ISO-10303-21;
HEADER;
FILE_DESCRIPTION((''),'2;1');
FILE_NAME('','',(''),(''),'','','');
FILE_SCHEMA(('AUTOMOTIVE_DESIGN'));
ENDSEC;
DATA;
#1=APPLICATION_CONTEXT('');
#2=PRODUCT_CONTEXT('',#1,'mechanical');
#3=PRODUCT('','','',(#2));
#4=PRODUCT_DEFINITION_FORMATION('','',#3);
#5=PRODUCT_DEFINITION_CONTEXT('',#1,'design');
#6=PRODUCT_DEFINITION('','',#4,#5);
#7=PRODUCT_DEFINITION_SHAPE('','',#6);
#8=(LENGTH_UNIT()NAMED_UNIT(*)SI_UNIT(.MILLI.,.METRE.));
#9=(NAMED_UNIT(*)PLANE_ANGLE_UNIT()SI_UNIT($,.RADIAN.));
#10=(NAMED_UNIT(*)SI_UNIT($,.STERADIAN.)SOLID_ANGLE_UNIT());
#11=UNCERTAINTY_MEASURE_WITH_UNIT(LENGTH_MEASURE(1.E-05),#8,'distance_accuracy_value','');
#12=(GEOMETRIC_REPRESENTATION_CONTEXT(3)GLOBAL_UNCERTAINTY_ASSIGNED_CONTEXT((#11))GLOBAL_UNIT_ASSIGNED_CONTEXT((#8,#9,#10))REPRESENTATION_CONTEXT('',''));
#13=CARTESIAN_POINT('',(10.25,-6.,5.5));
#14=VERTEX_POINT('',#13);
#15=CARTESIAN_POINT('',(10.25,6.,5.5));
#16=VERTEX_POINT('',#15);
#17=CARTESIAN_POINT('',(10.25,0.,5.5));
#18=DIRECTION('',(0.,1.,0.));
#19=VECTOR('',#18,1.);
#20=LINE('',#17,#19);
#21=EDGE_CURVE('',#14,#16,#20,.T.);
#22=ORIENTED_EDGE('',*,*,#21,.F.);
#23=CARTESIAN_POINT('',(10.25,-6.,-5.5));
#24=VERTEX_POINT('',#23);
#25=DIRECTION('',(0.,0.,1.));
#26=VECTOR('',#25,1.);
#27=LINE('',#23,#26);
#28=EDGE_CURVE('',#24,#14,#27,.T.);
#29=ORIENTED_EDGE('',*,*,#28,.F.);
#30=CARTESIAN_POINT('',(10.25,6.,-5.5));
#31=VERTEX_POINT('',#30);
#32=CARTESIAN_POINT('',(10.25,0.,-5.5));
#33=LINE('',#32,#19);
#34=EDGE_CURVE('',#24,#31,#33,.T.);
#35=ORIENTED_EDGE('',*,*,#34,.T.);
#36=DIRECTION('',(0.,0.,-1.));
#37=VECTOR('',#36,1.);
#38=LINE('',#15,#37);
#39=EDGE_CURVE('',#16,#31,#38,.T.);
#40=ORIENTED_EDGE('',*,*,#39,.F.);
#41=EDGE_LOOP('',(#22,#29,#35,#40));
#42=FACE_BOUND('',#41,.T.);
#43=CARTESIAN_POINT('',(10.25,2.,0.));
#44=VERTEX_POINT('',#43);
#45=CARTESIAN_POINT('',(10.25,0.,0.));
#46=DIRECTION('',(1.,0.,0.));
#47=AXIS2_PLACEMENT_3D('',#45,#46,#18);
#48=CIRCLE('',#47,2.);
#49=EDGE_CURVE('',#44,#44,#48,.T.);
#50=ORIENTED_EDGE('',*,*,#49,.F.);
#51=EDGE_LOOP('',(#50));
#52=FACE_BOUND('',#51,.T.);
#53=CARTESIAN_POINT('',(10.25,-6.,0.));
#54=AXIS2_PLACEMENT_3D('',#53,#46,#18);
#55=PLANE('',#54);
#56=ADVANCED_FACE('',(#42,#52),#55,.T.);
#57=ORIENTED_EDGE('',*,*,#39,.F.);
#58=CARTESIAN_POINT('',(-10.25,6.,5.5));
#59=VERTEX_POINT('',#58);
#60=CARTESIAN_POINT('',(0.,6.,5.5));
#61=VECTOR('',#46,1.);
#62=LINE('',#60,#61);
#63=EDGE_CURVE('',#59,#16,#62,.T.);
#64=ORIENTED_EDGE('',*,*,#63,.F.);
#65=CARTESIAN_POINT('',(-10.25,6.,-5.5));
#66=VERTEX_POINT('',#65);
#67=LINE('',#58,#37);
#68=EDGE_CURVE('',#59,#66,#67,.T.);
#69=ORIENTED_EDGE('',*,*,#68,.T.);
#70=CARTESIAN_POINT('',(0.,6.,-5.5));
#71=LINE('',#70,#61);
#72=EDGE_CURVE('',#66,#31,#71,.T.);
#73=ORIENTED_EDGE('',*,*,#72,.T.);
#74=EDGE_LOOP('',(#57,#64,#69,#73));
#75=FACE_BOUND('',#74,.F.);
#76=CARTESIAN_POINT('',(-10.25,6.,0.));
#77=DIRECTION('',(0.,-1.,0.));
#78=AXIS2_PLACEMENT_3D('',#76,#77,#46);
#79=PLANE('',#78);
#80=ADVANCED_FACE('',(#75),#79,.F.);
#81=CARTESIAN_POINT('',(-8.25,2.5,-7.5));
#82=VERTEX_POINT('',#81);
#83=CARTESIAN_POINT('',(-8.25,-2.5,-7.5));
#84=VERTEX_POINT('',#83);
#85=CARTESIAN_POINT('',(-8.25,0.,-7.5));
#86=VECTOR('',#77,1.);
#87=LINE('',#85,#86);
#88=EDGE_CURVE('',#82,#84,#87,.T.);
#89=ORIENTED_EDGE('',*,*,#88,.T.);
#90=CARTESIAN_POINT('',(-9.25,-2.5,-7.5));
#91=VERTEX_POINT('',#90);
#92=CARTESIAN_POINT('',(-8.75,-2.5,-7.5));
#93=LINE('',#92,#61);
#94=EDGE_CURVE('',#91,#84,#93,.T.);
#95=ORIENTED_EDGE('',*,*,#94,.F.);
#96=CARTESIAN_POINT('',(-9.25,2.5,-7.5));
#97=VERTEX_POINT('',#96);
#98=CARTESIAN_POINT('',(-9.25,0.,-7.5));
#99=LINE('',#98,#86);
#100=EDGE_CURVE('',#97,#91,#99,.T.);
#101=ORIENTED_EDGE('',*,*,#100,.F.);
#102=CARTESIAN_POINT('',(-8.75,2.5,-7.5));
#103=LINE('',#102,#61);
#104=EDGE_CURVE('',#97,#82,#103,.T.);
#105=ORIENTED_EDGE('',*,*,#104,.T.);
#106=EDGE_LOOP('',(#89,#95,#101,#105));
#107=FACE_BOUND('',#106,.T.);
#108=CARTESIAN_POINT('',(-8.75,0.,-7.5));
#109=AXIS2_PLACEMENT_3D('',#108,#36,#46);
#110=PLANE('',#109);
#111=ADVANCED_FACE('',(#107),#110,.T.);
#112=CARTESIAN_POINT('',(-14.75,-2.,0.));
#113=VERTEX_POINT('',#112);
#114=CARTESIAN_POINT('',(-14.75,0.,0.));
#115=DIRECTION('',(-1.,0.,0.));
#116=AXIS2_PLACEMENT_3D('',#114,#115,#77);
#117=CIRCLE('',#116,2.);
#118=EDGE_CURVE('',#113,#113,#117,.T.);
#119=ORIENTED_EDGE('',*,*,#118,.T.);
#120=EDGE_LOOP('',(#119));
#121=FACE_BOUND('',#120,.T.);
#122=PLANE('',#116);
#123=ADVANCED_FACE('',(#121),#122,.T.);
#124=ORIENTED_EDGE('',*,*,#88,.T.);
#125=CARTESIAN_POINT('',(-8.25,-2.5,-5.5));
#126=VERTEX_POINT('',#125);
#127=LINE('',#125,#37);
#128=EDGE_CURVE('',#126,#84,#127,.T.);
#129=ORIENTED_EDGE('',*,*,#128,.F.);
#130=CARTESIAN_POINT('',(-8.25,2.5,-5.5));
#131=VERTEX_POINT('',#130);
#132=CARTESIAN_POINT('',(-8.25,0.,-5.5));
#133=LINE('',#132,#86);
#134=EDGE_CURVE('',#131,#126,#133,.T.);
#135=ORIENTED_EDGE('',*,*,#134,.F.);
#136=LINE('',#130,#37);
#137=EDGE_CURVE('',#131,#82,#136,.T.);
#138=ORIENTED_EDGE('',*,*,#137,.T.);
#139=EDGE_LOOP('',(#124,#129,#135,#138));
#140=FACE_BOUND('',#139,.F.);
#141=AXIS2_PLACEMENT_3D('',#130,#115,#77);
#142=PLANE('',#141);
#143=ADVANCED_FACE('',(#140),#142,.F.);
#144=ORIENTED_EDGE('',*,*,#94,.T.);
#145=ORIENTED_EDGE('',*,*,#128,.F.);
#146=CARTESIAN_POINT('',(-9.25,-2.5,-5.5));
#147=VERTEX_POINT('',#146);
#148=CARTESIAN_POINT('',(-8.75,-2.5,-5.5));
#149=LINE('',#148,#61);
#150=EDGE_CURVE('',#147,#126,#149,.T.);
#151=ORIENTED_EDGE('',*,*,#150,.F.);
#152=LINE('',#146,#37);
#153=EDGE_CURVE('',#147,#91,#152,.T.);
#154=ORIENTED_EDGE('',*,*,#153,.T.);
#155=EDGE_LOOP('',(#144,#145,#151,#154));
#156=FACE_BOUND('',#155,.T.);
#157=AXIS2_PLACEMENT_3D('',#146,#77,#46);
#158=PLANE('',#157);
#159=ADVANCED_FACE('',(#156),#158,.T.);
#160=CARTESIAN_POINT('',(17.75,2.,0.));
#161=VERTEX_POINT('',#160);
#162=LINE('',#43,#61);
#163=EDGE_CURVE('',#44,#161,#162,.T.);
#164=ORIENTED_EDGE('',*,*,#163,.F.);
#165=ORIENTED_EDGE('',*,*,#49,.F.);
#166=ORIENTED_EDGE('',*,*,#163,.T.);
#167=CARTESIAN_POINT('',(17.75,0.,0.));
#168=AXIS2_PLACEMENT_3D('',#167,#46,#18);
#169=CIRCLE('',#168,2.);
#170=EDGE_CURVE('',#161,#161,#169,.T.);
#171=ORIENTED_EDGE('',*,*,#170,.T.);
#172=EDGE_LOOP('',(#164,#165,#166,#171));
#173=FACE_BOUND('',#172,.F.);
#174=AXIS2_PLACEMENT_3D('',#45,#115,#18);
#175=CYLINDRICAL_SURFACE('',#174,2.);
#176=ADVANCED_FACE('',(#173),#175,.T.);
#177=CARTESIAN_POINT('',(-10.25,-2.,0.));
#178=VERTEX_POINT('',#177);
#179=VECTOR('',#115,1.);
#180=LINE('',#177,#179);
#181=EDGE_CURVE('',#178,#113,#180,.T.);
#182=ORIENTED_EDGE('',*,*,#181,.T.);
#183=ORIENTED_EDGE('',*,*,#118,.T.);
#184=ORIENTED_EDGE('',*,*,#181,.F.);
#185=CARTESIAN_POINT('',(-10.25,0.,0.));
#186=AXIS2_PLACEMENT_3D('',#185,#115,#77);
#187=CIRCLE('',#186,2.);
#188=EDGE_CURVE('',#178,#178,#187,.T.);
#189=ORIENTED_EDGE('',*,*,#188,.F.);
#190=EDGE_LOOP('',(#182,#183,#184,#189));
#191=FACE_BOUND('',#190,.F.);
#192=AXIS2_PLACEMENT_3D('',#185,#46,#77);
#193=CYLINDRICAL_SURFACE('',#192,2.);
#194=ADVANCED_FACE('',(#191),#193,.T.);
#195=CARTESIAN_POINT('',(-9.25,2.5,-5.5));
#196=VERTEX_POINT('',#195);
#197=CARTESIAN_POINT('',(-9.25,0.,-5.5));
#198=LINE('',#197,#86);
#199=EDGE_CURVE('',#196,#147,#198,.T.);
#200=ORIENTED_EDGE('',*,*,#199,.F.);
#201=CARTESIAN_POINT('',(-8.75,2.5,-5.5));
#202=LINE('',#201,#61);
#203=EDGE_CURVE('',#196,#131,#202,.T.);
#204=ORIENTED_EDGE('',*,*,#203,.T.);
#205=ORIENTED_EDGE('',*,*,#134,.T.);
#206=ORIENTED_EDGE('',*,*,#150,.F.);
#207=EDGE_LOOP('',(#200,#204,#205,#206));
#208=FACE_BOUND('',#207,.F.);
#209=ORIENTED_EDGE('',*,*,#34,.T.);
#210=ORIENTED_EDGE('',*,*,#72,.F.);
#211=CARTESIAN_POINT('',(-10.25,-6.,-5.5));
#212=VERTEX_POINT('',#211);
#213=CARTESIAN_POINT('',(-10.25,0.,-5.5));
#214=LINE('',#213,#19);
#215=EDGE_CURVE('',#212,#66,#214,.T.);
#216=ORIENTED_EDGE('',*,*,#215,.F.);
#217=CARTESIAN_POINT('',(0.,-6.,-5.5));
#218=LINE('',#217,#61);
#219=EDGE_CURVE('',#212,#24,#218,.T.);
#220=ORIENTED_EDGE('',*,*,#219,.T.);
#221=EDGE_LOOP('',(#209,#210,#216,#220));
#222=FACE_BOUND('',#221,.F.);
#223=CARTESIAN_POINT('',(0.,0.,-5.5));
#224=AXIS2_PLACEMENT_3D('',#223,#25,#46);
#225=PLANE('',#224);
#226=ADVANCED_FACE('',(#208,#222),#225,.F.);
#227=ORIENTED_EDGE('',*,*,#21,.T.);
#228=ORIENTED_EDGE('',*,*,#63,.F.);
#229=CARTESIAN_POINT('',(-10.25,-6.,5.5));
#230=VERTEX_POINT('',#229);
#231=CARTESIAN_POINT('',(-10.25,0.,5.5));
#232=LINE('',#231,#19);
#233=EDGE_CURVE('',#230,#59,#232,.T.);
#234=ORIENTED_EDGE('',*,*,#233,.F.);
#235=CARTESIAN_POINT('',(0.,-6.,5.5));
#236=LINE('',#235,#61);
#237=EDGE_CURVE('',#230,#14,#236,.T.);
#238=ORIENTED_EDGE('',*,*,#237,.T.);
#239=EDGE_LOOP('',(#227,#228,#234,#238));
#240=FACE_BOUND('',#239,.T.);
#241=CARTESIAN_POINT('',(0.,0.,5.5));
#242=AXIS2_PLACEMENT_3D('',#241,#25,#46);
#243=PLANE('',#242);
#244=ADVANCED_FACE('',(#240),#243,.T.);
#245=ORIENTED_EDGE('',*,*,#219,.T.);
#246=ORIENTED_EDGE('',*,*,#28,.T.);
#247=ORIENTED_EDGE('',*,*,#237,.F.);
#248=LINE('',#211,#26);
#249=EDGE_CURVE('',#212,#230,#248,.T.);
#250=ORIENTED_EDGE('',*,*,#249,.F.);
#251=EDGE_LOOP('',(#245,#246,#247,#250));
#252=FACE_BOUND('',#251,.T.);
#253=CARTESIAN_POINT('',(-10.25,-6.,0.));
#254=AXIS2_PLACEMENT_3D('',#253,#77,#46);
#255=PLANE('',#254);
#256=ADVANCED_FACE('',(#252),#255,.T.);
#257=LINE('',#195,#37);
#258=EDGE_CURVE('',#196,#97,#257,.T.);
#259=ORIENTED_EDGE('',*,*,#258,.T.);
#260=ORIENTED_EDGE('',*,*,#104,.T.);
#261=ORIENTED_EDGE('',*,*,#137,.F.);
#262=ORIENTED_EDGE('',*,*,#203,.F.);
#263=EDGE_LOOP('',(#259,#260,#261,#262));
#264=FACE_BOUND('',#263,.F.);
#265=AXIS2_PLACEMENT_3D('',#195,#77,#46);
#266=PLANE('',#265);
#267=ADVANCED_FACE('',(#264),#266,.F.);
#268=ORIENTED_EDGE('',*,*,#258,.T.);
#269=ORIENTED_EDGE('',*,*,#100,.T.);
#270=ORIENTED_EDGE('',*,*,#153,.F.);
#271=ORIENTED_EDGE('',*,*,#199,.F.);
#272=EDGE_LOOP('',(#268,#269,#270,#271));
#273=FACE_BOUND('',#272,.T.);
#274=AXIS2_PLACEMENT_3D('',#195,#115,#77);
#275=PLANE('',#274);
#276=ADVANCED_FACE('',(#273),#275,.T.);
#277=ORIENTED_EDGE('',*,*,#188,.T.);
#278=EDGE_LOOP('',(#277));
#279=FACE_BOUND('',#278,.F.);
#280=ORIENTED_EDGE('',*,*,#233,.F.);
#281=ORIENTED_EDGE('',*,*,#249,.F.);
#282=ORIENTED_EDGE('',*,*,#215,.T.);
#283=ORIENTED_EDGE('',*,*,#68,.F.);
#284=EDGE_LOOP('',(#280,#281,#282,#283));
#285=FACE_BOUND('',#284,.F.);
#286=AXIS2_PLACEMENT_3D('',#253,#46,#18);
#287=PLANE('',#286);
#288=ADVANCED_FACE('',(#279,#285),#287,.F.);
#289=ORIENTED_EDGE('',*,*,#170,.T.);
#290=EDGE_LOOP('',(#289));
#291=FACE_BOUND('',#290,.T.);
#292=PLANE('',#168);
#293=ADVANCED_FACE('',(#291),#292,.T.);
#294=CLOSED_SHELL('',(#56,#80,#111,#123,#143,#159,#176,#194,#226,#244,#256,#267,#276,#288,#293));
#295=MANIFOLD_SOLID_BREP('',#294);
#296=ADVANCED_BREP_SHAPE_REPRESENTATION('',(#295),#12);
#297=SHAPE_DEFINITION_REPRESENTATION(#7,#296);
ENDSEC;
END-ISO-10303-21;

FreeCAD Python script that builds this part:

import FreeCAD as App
import Part
import Sketcher
from FreeCAD import Vector
Q = App.Units.Quantity

doc = App.newDocument("Part")
body = doc.addObject("PartDesign::Body", "Body")

sketch1 = body.newObject("Sketcher::SketchObject", "Sketch")
sketch1.AttachmentSupport = (doc.getObject("XY_Plane"), [""])
sketch1.MapMode = "FlatFace"
sketch1.addGeometry([
    Part.LineSegment(Vector(-10, 6, 0), Vector(-10, -6, 0)),
    Part.LineSegment(Vector(-10, -6, 0), Vector(10, -6, 0)),
    Part.LineSegment(Vector(10, -6, 0), Vector(10, 6, 0)),
    Part.LineSegment(Vector(10, 6, 0), Vector(-10, 6, 0)),
], False)
sketch1.addConstraint([
    Sketcher.Constraint("Coincident", 0, 2, 1, 1),
    Sketcher.Constraint("Coincident", 1, 2, 2, 1),
    Sketcher.Constraint("Coincident", 2, 2, 3, 1),
    Sketcher.Constraint("Coincident", 3, 2, 0, 1),
    Sketcher.Constraint("Vertical", 0),
    Sketcher.Constraint("Horizontal", 1),
    Sketcher.Constraint("Vertical", 2),
    Sketcher.Constraint("Horizontal", 3),
    Sketcher.Constraint("Symmetric", 0, 2, 2, 2, -1, 1),
    Sketcher.Constraint("DistanceY", 0, 2, 0, 1, Q("12 mm")),
    Sketcher.Constraint("DistanceX", 1, 1, 1, 2, Q("20.5 mm")),
])
pad1 = body.newObject("PartDesign::Pad", "Pad")
pad1.Profile = sketch1
pad1.Type = "TwoLengths"
pad1.Length = 5.5
pad1.Length2 = 5.5

sketch2 = body.newObject("Sketcher::SketchObject", "Sketch001")
sketch2.AttachmentSupport = (doc.getObject("YZ_Plane"), [""])
sketch2.MapMode = "FlatFace"
sketch2.AttachmentOffset = App.Placement(Vector(0, 0, -10.25), App.Rotation())
sketch2.addGeometry(Part.Circle(Vector(0, 0, 0), Vector(0, 0, 1), 2), False)
sketch2.addConstraint([
    Sketcher.Constraint("Coincident", 0, 3, -1, 1),
    Sketcher.Constraint("Diameter", 0, Q("4 mm")),
])
pad2 = body.newObject("PartDesign::Pad", "Pad001")
pad2.Profile = sketch2
pad2.Length = 4.5
pad2.Reversed = True

sketch3 = body.newObject("Sketcher::SketchObject", "Sketch002")
sketch3.AttachmentSupport = (doc.getObject("YZ_Plane"), [""])
sketch3.MapMode = "FlatFace"
sketch3.AttachmentOffset = App.Placement(Vector(0, 0, 10.25), App.Rotation())
sketch3.addGeometry(Part.Circle(Vector(0, 0, 0), Vector(0, 0, 1), 2), False)
sketch3.addConstraint([
    Sketcher.Constraint("Coincident", 0, 3, -1, 1),
    Sketcher.Constraint("Diameter", 0, Q("4 mm")),
])
pad3 = body.newObject("PartDesign::Pad", "Pad002")
pad3.Profile = sketch3
pad3.Length = 7.5

sketch4 = body.newObject("Sketcher::SketchObject", "Sketch003")
sketch4.AttachmentSupport = (doc.getObject("XY_Plane"), [""])
sketch4.MapMode = "FlatFace"
sketch4.AttachmentOffset = App.Placement(Vector(0, 0, -5.5), App.Rotation())
sketch4.addGeometry([
    Part.LineSegment(Vector(-9.2, -2.5, 0), Vector(-9.2, 2.5, 0)),
    Part.LineSegment(Vector(-9.2, 2.5, 0), Vector(-8.2, 2.5, 0)),
    Part.LineSegment(Vector(-8.2, 2.5, 0), Vector(-8.2, -2.5, 0)),
    Part.LineSegment(Vector(-8.2, -2.5, 0), Vector(-9.2, -2.5, 0)),
], False)
sketch4.addConstraint([
    Sketcher.Constraint("Coincident", 0, 2, 1, 1),
    Sketcher.Constraint("Coincident", 1, 2, 2, 1),
    Sketcher.Constraint("Coincident", 2, 2, 3, 1),
    Sketcher.Constraint("Coincident", 3, 2, 0, 1),
    Sketcher.Constraint("Vertical", 0),
    Sketcher.Constraint("Horizontal", 1),
    Sketcher.Constraint("Vertical", 2),
    Sketcher.Constraint("Horizontal", 3),
    Sketcher.Constraint("DistanceX", 1, 1, 1, 2, Q("1 mm")),
    Sketcher.Constraint("DistanceY", 0, 1, 0, 2, Q("5 mm")),
    Sketcher.Constraint("DistanceY", -1, 1, 0, 2, Q("2.5 mm")),
    Sketcher.Constraint("DistanceX", 0, 2, -1, 1, Q("9.25 mm")),
])
pad4 = body.newObject("PartDesign::Pad", "Pad003")
pad4.Profile = sketch4
pad4.Length = 2
pad4.Reversed = True

doc.recompute()
